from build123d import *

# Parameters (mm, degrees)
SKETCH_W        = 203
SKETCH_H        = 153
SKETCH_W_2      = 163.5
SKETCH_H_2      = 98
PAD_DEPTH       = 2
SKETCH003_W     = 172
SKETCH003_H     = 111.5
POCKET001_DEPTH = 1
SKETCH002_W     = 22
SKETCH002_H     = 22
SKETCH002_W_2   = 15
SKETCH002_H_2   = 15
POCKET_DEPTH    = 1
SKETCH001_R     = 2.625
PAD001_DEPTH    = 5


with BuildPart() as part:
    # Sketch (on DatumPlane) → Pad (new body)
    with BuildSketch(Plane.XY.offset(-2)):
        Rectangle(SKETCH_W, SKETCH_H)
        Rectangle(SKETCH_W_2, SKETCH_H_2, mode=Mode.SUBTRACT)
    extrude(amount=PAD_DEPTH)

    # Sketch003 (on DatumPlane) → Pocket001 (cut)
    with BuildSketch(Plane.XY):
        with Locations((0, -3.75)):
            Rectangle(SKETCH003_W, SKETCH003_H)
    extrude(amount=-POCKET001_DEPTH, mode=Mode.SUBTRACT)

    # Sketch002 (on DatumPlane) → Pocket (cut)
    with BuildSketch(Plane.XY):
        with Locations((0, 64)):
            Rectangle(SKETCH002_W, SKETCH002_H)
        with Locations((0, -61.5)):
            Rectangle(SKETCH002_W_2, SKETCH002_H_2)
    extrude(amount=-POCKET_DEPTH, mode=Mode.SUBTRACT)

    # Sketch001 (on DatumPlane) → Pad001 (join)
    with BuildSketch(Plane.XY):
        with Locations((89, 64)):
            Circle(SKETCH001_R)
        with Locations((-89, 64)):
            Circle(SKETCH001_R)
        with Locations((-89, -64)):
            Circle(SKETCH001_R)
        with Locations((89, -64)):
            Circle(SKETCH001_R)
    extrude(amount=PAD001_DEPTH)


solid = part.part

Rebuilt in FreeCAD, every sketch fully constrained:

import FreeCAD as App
import Part
import Sketcher

V = App.Vector
Q = App.Units.Quantity

doc = App.newDocument("Part")
body = doc.addObject("PartDesign::Body", "Body")

sketch1 = body.newObject("Sketcher::SketchObject", "Sketch")
sketch1.AttachmentSupport = (doc.getObject("XY_Plane"), [""])
sketch1.MapMode = "FlatFace"
sketch1.AttachmentOffset = App.Placement(V(0, 0, -2), App.Rotation())
sketch1.addGeometry([
    Part.LineSegment(V(-102, 76, 0), V(-102, -76, 0)),
    Part.LineSegment(V(-102, -76, 0), V(102, -76, 0)),
    Part.LineSegment(V(102, -76, 0), V(102, 76, 0)),
    Part.LineSegment(V(102, 76, 0), V(-102, 76, 0)),
    Part.LineSegment(V(82, -49, 0), V(-82, -49, 0)),
    Part.LineSegment(V(-82, -49, 0), V(-82, 49, 0)),
    Part.LineSegment(V(-82, 49, 0), V(82, 49, 0)),
    Part.LineSegment(V(82, 49, 0), V(82, -49, 0)),
], False)
sketch1.addConstraint([
    Sketcher.Constraint("Coincident", 0, 2, 1, 1),
    Sketcher.Constraint("Coincident", 1, 2, 2, 1),
    Sketcher.Constraint("Coincident", 2, 2, 3, 1),
    Sketcher.Constraint("Coincident", 3, 2, 0, 1),
    Sketcher.Constraint("Coincident", 4, 2, 5, 1),
    Sketcher.Constraint("Coincident", 5, 2, 6, 1),
    Sketcher.Constraint("Coincident", 6, 2, 7, 1),
    Sketcher.Constraint("Coincident", 7, 2, 4, 1),
    Sketcher.Constraint("Vertical", 0),
    Sketcher.Constraint("Horizontal", 1),
    Sketcher.Constraint("Vertical", 2),
    Sketcher.Constraint("Horizontal", 3),
    Sketcher.Constraint("Horizontal", 4),
    Sketcher.Constraint("Vertical", 5),
    Sketcher.Constraint("Horizontal", 6),
    Sketcher.Constraint("Vertical", 7),
    Sketcher.Constraint("Symmetric", 0, 2, 2, 2, -1, 1),
    Sketcher.Constraint("Symmetric", 4, 2, 6, 2, -1, 1),
    Sketcher.Constraint("DistanceX", 1, 1, 1, 2, Q("203 mm")),
    Sketcher.Constraint("DistanceY", 0, 2, 0, 1, Q("153 mm")),
    Sketcher.Constraint("DistanceY", 5, 1, 5, 2, Q("98 mm")),
    Sketcher.Constraint("DistanceX", 4, 2, 4, 1, Q("163.5 mm")),
])
pad1 = body.newObject("PartDesign::Pad", "Pad")
pad1.Profile = sketch1
pad1.Length = 2

sketch2 = body.newObject("Sketcher::SketchObject", "Sketch001")
sketch2.AttachmentSupport = (doc.getObject("XY_Plane"), [""])
sketch2.MapMode = "FlatFace"
sketch2.addGeometry([
    Part.LineSegment(V(-86, 52, 0), V(-86, -60, 0)),
    Part.LineSegment(V(-86, -60, 0), V(86, -60, 0)),
    Part.LineSegment(V(86, -60, 0), V(86, 52, 0)),
    Part.LineSegment(V(86, 52, 0), V(-86, 52, 0)),
], False)
sketch2.addConstraint([
    Sketcher.Constraint("Coincident", 0, 2, 1, 1),
    Sketcher.Constraint("Coincident", 1, 2, 2, 1),
    Sketcher.Constraint("Coincident", 2, 2, 3, 1),
    Sketcher.Constraint("Coincident", 3, 2, 0, 1),
    Sketcher.Constraint("Vertical", 0),
    Sketcher.Constraint("Horizontal", 1),
    Sketcher.Constraint("Vertical", 2),
    Sketcher.Constraint("Horizontal", 3),
    Sketcher.Constraint("DistanceX", 1, 1, 1, 2, Q("172 mm")),
    Sketcher.Constraint("DistanceY", 0, 2, 0, 1, Q("111.5 mm")),
    Sketcher.Constraint("DistanceX", 0, 2, -1, 1, Q("86 mm")),
    Sketcher.Constraint("DistanceY", -1, 1, 2, 2, Q("52 mm")),
])
pocket1 = body.newObject("PartDesign::Pocket", "Pocket")
pocket1.Profile = sketch2
pocket1.Length = 1

sketch3 = body.newObject("Sketcher::SketchObject", "Sketch002")
sketch3.AttachmentSupport = (doc.getObject("XY_Plane"), [""])
sketch3.MapMode = "FlatFace"
sketch3.addGeometry([
    Part.LineSegment(V(-11, 75, 0), V(-11, 53, 0)),
    Part.LineSegment(V(-11, 53, 0), V(11, 53, 0)),
    Part.LineSegment(V(11, 53, 0), V(11, 75, 0)),
    Part.LineSegment(V(11, 75, 0), V(-11, 75, 0)),
    Part.LineSegment(V(-8, -54, 0), V(-8, -69, 0)),
    Part.LineSegment(V(-8, -69, 0), V(8, -69, 0)),
    Part.LineSegment(V(8, -69, 0), V(8, -54, 0)),
    Part.LineSegment(V(8, -54, 0), V(-8, -54, 0)),
], False)
sketch3.addConstraint([
    Sketcher.Constraint("Coincident", 0, 2, 1, 1),
    Sketcher.Constraint("Coincident", 1, 2, 2, 1),
    Sketcher.Constraint("Coincident", 2, 2, 3, 1),
    Sketcher.Constraint("Coincident", 3, 2, 0, 1),
    Sketcher.Constraint("Coincident", 4, 2, 5, 1),
    Sketcher.Constraint("Coincident", 5, 2, 6, 1),
    Sketcher.Constraint("Coincident", 6, 2, 7, 1),
    Sketcher.Constraint("Coincident", 7, 2, 4, 1),
    Sketcher.Constraint("Vertical", 0),
    Sketcher.Constraint("Horizontal", 1),
    Sketcher.Constraint("Vertical", 2),
    Sketcher.Constraint("Horizontal", 3),
    Sketcher.Constraint("Vertical", 4),
    Sketcher.Constraint("Horizontal", 5),
    Sketcher.Constraint("Vertical", 6),
    Sketcher.Constraint("Horizontal", 7),
    Sketcher.Constraint("Equal", 3, 0),
    Sketcher.Constraint("Equal", 7, 4),
    Sketcher.Constraint("DistanceX", 1, 1, 1, 2, Q("22 mm")),
    Sketcher.Constraint("DistanceX", 5, 1, 5, 2, Q("15 mm")),
    Sketcher.Constraint("DistanceX", 0, 2, -1, 1, Q("11 mm")),
    Sketcher.Constraint("DistanceY", -1, 1, 0, 2, Q("53 mm")),
    Sketcher.Constraint("DistanceY", 4, 2, -1, 1, Q("69 mm")),
    Sketcher.Constraint("DistanceX", 4, 2, -1, 1, Q("7.5 mm")),
])
pocket2 = body.newObject("PartDesign::Pocket", "Pocket001")
pocket2.Profile = sketch3
pocket2.Length = 1

sketch4 = body.newObject("Sketcher::SketchObject", "Sketch003")
sketch4.AttachmentSupport = (doc.getObject("XY_Plane"), [""])
sketch4.MapMode = "FlatFace"
sketch4.addGeometry([
    Part.Circle(V(89, 64, 0), V(0, 0, 1), 2.6),
    Part.Circle(V(-89, 64, 0), V(0, 0, 1), 2.6),
    Part.Circle(V(-89, -64, 0), V(0, 0, 1), 2.6),
    Part.Circle(V(89, -64, 0), V(0, 0, 1), 2.6),
], False)
sketch4.addConstraint([
    Sketcher.Constraint("Equal", 0, 1),
    Sketcher.Constraint("Equal", 1, 2),
    Sketcher.Constraint("Equal", 2, 3),
    Sketcher.Constraint("Symmetric", 0, 3, 2, 3, -1, 1),
    Sketcher.Constraint("Symmetric", 1, 3, 3, 3, -1, 1),
    Sketcher.Constraint("Symmetric", 0, 3, 1, 3, -2),
    Sketcher.Constraint("Diameter", 0, Q("5.25 mm")),
    Sketcher.Constraint("DistanceX", -1, 1, 0, 3, Q("89 mm")),
    Sketcher.Constraint("DistanceY", -1, 1, 0, 3, Q("64 mm")),
])
pad2 = body.newObject("PartDesign::Pad", "Pad001")
pad2.Profile = sketch4
pad2.Length = 5

doc.recompute()
